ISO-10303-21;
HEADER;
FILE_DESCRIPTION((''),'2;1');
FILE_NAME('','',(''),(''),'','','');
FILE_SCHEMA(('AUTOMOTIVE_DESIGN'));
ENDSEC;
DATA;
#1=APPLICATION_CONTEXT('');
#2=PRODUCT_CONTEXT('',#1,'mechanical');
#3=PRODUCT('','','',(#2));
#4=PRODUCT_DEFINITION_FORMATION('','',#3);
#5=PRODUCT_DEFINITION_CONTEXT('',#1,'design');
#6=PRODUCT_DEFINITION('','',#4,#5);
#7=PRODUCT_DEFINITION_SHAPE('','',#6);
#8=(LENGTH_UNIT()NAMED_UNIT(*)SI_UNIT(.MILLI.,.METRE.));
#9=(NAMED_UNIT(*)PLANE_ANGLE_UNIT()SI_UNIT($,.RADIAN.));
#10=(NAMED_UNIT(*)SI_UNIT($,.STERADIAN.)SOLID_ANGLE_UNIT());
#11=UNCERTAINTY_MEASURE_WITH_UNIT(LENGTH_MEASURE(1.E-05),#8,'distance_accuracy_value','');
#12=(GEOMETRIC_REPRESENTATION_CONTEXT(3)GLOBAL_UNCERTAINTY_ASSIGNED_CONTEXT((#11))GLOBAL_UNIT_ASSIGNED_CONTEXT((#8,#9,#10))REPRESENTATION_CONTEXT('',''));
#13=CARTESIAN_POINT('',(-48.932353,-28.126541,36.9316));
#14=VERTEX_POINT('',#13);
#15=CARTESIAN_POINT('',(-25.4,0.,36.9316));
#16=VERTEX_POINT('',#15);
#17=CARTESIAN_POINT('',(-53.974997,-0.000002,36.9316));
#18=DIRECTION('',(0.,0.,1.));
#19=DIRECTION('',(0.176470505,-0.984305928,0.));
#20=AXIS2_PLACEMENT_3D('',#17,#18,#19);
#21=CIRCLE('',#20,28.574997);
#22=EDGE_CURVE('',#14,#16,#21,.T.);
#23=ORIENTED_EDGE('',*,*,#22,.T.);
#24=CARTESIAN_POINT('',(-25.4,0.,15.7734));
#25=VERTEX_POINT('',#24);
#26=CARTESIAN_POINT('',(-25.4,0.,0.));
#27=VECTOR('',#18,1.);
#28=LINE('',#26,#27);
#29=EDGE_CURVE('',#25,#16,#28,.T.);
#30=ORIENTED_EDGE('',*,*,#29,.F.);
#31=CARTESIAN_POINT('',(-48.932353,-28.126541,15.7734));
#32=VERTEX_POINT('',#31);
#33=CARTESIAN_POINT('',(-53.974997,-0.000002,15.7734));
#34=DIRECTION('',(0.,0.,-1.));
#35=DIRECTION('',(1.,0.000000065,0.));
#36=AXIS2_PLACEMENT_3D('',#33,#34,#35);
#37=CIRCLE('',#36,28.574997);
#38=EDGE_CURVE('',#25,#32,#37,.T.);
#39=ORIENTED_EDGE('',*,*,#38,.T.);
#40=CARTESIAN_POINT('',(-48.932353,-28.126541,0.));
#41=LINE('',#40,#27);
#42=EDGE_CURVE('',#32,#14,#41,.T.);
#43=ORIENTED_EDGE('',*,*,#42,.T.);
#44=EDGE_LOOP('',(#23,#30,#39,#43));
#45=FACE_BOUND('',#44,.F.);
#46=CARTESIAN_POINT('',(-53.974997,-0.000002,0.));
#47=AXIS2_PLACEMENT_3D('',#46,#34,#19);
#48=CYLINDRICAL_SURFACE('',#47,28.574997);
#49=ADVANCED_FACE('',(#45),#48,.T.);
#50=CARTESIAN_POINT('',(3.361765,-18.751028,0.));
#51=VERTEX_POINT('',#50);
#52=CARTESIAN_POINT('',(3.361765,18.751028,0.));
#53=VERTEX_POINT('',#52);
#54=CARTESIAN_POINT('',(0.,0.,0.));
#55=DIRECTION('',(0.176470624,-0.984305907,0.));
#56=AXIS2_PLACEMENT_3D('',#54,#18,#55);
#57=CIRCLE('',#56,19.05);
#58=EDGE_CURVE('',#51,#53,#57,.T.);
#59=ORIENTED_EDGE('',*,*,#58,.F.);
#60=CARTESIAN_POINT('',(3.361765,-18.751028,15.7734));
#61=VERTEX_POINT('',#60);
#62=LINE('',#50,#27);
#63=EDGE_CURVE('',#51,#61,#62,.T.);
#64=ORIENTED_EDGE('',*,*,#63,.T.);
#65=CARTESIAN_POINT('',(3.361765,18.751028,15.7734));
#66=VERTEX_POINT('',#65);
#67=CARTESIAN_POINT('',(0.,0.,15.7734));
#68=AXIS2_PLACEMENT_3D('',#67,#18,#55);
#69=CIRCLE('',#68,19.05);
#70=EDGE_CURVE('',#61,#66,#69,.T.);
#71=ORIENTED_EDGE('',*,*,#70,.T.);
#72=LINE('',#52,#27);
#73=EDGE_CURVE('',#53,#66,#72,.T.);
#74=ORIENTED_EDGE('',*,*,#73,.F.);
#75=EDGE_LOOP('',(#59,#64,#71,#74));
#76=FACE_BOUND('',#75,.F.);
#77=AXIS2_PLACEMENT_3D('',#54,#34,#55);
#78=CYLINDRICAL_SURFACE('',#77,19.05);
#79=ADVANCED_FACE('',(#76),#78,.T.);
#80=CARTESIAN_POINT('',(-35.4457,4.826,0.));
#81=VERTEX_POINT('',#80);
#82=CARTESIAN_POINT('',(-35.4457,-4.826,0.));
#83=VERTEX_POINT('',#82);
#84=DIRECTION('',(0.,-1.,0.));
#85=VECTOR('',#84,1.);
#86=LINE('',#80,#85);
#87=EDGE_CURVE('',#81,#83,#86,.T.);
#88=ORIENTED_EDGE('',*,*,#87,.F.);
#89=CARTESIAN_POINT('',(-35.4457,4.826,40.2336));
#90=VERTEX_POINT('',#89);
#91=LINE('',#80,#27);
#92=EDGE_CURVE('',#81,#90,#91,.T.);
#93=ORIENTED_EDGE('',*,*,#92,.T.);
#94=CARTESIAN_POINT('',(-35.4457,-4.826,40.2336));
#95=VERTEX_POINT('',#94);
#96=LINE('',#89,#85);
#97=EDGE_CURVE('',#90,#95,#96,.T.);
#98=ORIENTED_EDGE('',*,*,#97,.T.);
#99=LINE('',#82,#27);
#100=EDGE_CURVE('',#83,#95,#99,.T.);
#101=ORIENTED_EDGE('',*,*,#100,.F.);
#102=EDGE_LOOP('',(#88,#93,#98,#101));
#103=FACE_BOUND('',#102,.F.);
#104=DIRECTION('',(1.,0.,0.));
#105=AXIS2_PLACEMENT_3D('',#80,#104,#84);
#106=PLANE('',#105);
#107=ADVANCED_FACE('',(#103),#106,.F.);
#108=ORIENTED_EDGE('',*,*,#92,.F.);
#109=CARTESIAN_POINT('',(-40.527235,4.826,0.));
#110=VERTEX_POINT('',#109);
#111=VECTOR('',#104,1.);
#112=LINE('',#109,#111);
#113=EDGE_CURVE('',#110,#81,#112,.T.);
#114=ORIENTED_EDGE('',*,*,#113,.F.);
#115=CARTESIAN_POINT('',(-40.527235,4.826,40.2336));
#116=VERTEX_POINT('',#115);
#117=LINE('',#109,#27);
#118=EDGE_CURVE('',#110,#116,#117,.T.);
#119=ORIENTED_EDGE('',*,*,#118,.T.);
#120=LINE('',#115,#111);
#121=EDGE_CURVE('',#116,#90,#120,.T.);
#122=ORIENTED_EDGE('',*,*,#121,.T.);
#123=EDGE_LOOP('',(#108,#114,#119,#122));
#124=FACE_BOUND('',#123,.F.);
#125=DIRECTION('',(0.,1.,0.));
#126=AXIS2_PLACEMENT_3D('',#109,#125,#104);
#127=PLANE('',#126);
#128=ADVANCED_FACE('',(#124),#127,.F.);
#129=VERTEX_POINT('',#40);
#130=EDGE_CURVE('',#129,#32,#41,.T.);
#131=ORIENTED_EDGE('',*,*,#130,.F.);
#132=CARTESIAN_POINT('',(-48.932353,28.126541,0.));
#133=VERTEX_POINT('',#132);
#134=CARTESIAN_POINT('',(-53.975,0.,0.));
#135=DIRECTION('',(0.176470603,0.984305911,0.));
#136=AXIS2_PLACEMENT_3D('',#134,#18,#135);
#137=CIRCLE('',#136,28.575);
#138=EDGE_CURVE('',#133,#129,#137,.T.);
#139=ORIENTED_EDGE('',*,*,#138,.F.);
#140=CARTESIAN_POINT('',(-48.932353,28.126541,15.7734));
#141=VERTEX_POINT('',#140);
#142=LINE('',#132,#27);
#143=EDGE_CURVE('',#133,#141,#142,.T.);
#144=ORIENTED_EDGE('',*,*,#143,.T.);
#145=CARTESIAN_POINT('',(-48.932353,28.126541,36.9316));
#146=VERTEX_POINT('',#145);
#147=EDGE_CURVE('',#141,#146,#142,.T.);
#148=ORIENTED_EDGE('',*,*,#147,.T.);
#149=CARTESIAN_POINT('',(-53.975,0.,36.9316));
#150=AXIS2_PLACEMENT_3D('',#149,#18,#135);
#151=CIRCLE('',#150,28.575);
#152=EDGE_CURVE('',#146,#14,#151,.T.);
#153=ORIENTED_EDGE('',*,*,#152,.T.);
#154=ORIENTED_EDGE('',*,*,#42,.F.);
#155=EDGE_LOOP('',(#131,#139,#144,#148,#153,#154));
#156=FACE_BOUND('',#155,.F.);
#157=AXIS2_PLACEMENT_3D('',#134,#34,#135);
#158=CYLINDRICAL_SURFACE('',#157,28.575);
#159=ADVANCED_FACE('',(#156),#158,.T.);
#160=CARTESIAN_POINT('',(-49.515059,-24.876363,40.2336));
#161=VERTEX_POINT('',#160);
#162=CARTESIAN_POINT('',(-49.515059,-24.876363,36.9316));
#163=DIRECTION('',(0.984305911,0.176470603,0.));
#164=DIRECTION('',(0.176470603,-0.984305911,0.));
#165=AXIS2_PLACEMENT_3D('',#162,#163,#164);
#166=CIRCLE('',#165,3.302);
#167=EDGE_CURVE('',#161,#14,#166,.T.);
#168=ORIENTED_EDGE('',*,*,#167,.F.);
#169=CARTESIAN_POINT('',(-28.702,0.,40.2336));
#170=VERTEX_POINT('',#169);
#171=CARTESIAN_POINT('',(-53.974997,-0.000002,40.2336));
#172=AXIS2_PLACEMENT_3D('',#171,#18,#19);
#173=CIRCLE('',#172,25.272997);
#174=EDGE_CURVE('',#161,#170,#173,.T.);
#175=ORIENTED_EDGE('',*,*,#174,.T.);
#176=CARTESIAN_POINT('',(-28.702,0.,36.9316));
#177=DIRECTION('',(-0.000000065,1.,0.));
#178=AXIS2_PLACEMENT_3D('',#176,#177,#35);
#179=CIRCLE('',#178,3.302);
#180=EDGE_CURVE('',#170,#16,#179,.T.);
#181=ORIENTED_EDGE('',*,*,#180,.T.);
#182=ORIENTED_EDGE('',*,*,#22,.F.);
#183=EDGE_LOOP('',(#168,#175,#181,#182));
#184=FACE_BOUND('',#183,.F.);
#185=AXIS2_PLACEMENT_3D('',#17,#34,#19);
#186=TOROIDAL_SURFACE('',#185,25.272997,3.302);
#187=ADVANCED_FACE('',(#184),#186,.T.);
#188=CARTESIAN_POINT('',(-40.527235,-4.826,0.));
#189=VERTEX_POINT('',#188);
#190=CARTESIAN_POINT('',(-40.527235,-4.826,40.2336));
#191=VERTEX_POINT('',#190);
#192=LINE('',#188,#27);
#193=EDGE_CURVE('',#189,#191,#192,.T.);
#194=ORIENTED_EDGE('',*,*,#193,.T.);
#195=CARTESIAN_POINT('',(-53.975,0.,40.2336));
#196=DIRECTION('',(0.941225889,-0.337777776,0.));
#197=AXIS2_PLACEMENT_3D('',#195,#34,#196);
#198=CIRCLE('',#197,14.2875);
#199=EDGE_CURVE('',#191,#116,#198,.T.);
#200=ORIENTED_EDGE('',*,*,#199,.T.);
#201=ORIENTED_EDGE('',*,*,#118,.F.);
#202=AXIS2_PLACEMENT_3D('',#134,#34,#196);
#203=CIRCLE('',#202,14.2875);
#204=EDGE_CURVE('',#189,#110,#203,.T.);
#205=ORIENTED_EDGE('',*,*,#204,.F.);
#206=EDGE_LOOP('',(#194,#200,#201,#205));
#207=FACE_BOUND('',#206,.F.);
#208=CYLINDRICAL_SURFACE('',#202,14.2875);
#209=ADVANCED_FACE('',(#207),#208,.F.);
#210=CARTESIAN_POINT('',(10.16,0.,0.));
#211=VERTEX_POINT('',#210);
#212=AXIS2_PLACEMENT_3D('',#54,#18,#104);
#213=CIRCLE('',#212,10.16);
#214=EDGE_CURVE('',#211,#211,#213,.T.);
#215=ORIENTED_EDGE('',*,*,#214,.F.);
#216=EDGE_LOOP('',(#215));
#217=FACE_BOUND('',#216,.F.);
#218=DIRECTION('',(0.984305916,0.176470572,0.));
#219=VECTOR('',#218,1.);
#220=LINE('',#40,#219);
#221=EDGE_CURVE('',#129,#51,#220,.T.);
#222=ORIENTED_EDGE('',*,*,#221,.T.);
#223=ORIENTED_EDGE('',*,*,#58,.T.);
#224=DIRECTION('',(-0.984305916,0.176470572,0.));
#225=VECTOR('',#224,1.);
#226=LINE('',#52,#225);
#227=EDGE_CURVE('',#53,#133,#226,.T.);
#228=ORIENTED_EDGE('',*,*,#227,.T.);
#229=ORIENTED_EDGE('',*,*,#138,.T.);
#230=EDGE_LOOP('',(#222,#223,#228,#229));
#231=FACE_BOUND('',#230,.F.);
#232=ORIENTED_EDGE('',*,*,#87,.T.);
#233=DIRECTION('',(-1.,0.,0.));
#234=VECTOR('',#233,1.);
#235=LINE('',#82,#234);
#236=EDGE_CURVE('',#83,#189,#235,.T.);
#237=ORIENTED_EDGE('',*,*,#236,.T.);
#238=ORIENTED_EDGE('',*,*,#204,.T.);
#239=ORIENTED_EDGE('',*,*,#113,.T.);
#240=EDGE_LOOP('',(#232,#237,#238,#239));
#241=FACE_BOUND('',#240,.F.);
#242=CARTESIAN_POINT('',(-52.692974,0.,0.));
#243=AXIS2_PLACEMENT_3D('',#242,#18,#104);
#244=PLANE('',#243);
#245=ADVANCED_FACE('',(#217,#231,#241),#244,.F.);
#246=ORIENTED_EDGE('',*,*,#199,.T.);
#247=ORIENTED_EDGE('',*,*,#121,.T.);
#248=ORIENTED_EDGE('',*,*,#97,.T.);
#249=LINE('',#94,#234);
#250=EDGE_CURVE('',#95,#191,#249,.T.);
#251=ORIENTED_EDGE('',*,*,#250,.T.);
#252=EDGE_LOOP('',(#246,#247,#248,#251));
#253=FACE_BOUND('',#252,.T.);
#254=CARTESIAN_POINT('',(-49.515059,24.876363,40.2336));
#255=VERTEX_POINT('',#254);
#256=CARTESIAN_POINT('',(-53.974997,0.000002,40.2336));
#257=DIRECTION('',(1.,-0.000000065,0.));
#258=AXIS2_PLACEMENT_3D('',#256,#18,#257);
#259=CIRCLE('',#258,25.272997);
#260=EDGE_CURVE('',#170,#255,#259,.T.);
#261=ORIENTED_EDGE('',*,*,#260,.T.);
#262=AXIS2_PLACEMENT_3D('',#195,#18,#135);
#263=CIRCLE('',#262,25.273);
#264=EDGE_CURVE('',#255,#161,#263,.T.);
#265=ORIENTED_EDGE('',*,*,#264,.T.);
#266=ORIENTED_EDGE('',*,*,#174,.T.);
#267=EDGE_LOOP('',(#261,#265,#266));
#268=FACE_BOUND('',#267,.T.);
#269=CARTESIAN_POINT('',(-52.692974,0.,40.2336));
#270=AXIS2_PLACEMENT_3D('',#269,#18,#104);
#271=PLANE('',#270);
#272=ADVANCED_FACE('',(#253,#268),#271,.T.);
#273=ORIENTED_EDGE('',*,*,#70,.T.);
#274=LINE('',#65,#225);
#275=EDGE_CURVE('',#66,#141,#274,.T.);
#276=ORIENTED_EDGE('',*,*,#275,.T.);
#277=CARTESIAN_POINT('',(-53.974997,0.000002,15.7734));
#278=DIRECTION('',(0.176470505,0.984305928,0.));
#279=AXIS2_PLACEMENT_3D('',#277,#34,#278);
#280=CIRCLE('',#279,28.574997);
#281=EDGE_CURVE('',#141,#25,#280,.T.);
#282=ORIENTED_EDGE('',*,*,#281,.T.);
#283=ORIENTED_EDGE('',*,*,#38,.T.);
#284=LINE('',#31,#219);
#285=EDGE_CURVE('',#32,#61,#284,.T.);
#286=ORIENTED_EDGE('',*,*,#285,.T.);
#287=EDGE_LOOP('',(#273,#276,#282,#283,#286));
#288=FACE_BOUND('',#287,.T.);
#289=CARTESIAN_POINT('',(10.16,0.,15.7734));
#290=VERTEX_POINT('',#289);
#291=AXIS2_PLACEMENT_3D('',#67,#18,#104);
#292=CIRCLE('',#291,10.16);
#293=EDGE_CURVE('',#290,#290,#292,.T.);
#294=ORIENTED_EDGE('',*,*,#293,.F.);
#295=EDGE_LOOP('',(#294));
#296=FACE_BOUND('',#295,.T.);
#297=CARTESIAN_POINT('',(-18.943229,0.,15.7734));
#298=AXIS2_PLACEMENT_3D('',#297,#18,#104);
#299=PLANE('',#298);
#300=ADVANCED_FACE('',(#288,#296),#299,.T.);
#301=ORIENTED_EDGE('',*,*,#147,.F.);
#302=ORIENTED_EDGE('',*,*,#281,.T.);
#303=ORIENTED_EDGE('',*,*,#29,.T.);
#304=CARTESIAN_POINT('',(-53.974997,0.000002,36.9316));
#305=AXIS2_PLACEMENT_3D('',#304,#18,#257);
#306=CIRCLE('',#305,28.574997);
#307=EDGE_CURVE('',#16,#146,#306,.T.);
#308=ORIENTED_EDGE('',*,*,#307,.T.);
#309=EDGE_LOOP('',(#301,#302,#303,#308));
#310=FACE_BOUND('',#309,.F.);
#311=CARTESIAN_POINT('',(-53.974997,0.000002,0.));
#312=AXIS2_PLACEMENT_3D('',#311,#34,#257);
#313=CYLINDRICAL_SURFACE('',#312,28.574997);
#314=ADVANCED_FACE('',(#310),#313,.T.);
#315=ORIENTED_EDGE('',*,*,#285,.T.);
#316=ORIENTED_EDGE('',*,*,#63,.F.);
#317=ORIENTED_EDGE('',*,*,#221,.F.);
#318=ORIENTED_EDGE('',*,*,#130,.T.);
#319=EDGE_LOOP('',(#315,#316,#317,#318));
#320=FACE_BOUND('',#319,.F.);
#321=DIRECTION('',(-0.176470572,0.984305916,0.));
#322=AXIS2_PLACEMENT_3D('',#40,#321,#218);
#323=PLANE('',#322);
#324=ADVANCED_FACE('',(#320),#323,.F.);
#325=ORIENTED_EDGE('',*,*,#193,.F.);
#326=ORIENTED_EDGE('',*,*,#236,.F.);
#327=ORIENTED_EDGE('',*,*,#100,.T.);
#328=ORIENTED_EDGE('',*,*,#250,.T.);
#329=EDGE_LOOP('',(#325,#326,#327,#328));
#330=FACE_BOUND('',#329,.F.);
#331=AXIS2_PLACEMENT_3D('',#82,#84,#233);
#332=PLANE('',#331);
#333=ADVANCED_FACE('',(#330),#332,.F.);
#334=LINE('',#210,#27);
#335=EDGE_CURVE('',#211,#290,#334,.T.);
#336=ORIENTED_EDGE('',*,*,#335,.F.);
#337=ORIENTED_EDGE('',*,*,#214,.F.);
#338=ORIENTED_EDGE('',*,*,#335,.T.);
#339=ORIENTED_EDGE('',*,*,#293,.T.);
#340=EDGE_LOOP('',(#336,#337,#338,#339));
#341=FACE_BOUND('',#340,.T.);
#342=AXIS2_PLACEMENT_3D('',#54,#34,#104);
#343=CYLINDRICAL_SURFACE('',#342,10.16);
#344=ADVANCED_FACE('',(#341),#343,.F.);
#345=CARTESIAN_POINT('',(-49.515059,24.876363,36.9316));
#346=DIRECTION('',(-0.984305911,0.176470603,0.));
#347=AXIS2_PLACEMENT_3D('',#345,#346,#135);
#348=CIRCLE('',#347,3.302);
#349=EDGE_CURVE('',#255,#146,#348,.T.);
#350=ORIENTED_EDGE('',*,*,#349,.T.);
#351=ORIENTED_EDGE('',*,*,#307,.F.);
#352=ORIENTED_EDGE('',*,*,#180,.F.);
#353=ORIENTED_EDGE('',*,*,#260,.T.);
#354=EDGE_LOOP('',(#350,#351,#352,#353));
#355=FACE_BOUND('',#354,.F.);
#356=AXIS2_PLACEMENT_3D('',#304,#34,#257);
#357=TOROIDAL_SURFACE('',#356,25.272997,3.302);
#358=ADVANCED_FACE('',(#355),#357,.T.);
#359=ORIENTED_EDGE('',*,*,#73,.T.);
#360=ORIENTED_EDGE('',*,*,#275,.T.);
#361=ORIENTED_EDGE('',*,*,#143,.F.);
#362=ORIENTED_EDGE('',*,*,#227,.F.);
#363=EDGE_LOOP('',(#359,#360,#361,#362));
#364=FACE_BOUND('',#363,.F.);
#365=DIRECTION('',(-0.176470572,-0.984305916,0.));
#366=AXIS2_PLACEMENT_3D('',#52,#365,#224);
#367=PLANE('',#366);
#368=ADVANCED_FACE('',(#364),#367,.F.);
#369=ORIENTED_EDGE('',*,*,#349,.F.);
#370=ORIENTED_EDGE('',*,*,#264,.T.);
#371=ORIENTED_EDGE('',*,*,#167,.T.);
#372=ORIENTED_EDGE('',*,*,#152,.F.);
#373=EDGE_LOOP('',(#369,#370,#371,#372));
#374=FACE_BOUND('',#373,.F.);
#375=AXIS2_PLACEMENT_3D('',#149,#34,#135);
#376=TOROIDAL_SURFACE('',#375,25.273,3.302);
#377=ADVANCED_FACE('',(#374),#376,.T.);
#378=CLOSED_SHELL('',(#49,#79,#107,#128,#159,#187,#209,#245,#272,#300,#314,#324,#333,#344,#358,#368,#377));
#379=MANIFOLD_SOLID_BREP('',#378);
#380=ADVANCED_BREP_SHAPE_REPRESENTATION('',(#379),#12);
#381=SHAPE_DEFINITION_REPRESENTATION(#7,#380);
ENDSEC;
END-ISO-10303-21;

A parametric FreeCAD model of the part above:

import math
import FreeCAD as App
import Part
import Sketcher

V = App.Vector
Q = App.Units.Quantity


def edges_at(feature, points):
    """Names of the edges that pass closest to the given points."""
    edges = feature.Shape.Edges
    near = lambda p: min(range(len(edges)), key=lambda i: edges[i].distToShape(Part.Vertex(*p))[0])
    return sorted({f"Edge{near(p) + 1}" for p in points})

doc = App.newDocument("Part")
body = doc.addObject("PartDesign::Body", "Body")

sketch1 = doc.addObject("Sketcher::SketchObject", "Sketch")
body.addObject(sketch1)
sketch1.AttachmentSupport = (doc.XY_Plane, [""])
sketch1.MapMode = "FlatFace"
sketch1.addGeometry([
    Part.ArcOfCircle(Part.Circle(V(-54, 0, 0), V(0, 0, 1), 29), math.radians(0), math.radians(80)),
    Part.ArcOfCircle(Part.Circle(V(-54, 0, 0), V(0, 0, 1), 29), math.radians(-80), math.radians(0)),
    Part.LineSegment(V(-49, -28, 0), V(3, -19, 0)),
    Part.ArcOfCircle(Part.Circle(V(0, 0, 0), V(0, 0, 1), 19), math.radians(-80), math.radians(80)),
    Part.LineSegment(V(3, 19, 0), V(-49, 28, 0)),
    Part.Circle(V(0, 0, 0), V(0, 0, 1), 10),
], False)
sketch1.addConstraint([
    Sketcher.Constraint("Tangent", 0, 1, 1, 2),
    Sketcher.Constraint("Tangent", 1, 1, 2, 1),
    Sketcher.Constraint("Tangent", 2, 2, 3, 1),
    Sketcher.Constraint("Tangent", 3, 2, 4, 1),
    Sketcher.Constraint("Tangent", 4, 2, 0, 2),
    Sketcher.Constraint("Coincident", 3, 3, -1, 1),
    Sketcher.Constraint("Coincident", 5, 3, -1, 1),
    Sketcher.Constraint("Equal", 0, 1),
    Sketcher.Constraint("PointOnObject", 0, 3, -1),
    Sketcher.Constraint("PointOnObject", 0, 1, -1),
    Sketcher.Constraint("Diameter", 5, Q("0.8 in")),
    Sketcher.Constraint("Radius", 3, Q("0.75 in")),
    Sketcher.Constraint("DistanceX", 0, 1, -1, 1, Q("1 in")),
    Sketcher.Constraint("Radius", 0, Q("1.1249999 in")),
])
pad1 = doc.addObject("PartDesign::Pad", "Pad")
body.addObject(pad1)
pad1.Profile = sketch1
pad1.Length = Q("0.621 in")

sketch2 = doc.addObject("Sketcher::SketchObject", "Sketch001")
body.addObject(sketch2)
sketch2.AttachmentSupport = (doc.XY_Plane, [""])
sketch2.MapMode = "FlatFace"
sketch2.addGeometry([
    Part.ArcOfCircle(Part.Circle(V(-54, 0, 0), V(0, 0, 1), 29), math.radians(-80), math.radians(0)),
    Part.ArcOfCircle(Part.Circle(V(-54, 0, 0), V(0, 0, 1), 29), math.radians(0), math.radians(80)),
    Part.ArcOfCircle(Part.Circle(V(-54, 0, 0), V(0, 0, 1), 29), math.radians(80), math.radians(280)),
    Part.LineSegment(V(-35, -5, 0), V(-41, -5, 0)),
    Part.ArcOfCircle(Part.Circle(V(-54, 0, 0), V(0, 0, 1), 14), math.radians(20), math.radians(340)),
    Part.LineSegment(V(-41, 5, 0), V(-35, 5, 0)),
    Part.LineSegment(V(-35, 5, 0), V(-35, -5, 0)),
], False)
sketch2.addConstraint([
    Sketcher.Constraint("Tangent", 0, 2, 1, 1),
    Sketcher.Constraint("Tangent", 1, 2, 2, 1),
    Sketcher.Constraint("Tangent", 2, 2, 0, 1),
    Sketcher.Constraint("Coincident", 3, 2, 4, 2),
    Sketcher.Constraint("Coincident", 4, 1, 5, 1),
    Sketcher.Constraint("Coincident", 5, 2, 6, 1),
    Sketcher.Constraint("Coincident", 6, 2, 3, 1),
    Sketcher.Constraint("Horizontal", 3),
    Sketcher.Constraint("Horizontal", 5),
    Sketcher.Constraint("Vertical", 6),
    Sketcher.Constraint("Coincident", 4, 3, 0, 3),
    Sketcher.Constraint("Symmetric", 1, 2, 2, 2, -1),
    Sketcher.Constraint("PointOnObject", 0, 2, -1),
    Sketcher.Constraint("Vertical", 3, 2, 4, 1),
    Sketcher.Constraint("DistanceX", 0, 2, -1, 1, Q("1 in")),
    Sketcher.Constraint("Radius", 0, Q("1.1249999 in")),
    Sketcher.Constraint("Radius", 4, Q("0.5625 in")),
    Sketcher.Constraint("DistanceY", 6, 2, 6, 1, Q("0.38 in")),
    Sketcher.Constraint("DistanceX", 5, 2, -1, 1, Q("1.3955 in")),
    Sketcher.Constraint("DistanceY", -1, 1, 1, 2, 28.126541),
])
pad2 = doc.addObject("PartDesign::Pad", "Pad001")
body.addObject(pad2)
pad2.Profile = sketch2
pad2.Length = Q("1.584 in")
doc.recompute()

fillet = doc.addObject("PartDesign::Fillet", "Fillet")
body.addObject(fillet)
fillet.Base = (pad2, edges_at(pad2, [(-82.55, 0, 40.234)]))
fillet.Radius = Q("0.13 in")

doc.recompute()
